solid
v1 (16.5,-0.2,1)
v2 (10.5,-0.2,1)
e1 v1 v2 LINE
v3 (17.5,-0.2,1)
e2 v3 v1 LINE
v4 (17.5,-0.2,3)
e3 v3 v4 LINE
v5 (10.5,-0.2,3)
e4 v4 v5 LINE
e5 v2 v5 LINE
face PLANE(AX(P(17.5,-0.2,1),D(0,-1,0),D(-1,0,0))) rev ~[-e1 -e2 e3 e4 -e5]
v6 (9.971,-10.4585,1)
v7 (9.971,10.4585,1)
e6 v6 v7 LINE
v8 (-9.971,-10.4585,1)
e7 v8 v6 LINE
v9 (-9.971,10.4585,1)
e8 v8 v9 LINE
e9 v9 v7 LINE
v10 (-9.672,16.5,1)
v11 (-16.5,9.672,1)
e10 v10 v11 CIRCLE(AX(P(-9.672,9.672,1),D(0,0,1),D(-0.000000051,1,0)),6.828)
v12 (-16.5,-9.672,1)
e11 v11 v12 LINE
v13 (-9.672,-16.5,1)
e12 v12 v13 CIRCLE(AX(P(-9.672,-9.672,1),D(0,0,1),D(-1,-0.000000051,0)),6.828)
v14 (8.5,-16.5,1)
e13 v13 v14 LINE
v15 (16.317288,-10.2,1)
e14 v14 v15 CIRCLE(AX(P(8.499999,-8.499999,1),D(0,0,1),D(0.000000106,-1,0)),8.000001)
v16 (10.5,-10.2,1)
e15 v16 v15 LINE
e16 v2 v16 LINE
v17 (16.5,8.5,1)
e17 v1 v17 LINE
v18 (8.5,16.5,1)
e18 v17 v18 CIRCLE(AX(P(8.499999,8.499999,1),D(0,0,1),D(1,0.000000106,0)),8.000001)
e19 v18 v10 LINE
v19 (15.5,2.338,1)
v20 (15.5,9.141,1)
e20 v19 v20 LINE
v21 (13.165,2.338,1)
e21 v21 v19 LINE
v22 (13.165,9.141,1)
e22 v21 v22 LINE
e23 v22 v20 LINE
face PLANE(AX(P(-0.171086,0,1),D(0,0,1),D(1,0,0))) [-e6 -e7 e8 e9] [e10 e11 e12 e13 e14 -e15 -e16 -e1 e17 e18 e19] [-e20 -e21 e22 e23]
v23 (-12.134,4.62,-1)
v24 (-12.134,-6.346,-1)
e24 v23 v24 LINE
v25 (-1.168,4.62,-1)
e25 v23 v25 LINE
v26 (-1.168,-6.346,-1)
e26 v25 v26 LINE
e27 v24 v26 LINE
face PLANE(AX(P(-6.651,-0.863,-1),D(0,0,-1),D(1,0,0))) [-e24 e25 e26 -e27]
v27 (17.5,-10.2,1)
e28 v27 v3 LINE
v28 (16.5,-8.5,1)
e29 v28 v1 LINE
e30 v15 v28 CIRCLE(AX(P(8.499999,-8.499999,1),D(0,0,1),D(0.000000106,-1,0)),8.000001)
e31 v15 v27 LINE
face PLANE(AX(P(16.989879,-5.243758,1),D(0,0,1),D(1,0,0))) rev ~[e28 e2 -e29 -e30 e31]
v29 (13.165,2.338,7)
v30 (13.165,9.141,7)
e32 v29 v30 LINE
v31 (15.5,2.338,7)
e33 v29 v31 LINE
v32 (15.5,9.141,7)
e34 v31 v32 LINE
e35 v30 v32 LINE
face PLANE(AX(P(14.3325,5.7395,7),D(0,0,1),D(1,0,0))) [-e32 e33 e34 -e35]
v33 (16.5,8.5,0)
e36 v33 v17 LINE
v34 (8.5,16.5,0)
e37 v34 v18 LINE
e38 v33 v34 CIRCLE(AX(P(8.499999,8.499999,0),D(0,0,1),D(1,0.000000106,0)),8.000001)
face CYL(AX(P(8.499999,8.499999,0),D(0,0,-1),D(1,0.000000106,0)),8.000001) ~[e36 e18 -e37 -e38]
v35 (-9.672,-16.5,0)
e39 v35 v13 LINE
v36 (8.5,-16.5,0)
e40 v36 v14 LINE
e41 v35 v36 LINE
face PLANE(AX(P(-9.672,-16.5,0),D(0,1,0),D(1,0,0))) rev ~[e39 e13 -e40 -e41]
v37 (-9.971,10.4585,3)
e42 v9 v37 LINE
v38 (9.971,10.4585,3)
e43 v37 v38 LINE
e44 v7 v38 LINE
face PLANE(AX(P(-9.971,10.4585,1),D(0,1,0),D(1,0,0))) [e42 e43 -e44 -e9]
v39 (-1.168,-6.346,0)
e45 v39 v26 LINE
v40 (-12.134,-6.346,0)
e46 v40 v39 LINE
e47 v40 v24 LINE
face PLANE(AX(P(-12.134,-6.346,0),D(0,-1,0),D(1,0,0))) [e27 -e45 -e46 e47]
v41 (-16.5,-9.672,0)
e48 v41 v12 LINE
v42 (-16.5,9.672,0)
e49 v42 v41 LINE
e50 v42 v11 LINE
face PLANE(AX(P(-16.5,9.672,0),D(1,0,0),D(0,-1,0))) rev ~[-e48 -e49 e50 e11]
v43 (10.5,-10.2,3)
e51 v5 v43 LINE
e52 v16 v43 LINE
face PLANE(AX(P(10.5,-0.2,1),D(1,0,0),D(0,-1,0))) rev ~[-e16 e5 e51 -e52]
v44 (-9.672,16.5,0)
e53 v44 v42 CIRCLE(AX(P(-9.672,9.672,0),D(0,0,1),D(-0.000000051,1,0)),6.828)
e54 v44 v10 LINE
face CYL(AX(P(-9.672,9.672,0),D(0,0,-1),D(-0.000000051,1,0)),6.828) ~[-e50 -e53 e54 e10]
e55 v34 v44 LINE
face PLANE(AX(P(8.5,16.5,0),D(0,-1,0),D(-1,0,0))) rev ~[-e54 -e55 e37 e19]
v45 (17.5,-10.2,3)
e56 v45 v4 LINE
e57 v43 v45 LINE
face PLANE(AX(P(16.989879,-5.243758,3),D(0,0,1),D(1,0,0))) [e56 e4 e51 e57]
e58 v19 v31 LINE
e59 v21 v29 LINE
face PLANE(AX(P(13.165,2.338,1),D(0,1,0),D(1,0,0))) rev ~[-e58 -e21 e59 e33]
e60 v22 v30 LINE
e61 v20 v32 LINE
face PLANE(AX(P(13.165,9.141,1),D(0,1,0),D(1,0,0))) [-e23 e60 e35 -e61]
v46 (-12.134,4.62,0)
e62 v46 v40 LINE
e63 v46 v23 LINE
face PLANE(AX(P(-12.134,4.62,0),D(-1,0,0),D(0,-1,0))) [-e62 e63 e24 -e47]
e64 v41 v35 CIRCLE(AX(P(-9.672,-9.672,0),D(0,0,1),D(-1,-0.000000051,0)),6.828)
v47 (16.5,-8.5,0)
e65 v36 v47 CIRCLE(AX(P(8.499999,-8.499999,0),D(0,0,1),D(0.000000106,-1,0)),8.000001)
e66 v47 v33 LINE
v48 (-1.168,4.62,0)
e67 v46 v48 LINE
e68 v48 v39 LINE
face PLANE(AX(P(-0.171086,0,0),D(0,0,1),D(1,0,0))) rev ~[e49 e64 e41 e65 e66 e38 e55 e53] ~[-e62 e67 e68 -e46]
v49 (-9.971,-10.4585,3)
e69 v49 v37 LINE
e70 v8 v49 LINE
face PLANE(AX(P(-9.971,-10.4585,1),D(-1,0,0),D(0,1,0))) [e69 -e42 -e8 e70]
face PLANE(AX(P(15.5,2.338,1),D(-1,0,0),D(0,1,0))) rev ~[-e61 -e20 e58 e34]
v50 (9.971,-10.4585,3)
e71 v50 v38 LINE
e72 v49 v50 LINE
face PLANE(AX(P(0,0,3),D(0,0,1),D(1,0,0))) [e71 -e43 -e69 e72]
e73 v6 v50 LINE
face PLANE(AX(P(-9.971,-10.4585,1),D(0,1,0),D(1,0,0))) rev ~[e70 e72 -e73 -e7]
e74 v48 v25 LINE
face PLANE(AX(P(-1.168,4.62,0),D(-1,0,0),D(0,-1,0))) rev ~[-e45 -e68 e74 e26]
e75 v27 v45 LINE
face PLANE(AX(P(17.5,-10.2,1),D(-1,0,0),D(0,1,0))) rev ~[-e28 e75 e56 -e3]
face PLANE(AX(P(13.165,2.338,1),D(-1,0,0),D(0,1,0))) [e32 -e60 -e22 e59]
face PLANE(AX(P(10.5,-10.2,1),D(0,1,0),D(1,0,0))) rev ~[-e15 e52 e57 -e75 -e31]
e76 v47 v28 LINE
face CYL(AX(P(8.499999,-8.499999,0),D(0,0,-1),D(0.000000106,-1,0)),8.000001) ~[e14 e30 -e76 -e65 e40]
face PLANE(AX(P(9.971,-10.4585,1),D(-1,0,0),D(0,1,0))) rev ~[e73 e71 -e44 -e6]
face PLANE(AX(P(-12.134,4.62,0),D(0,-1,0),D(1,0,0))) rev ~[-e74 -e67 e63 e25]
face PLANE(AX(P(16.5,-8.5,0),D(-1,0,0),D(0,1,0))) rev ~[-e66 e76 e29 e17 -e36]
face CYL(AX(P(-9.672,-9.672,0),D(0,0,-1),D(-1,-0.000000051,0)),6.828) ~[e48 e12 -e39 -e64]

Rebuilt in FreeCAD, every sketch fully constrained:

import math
import FreeCAD as App
import Part
import Sketcher
Q = App.Units.Quantity


def add_polygon(sketch, points):
    """Adds a closed chain of lines whose ends are joined by coincident constraints."""
    first, n = sketch.GeometryCount, len(points)
    for a, b in zip(points, points[1:] + points[:1]):
        sketch.addGeometry(Part.LineSegment(App.Vector(*a, 0), App.Vector(*b, 0)), False)
    for i in range(n):
        sketch.addConstraint(Sketcher.Constraint("Coincident", first + i, 2, first + (i + 1) % n, 1))

doc = App.newDocument("Part")
params = doc.addObject("Spreadsheet::Sheet", "Params")
for row, (alias, value) in enumerate([
    ("sketch1_radius", "8.000001 mm"),
    ("sketch1_height", "17 mm"),
    ("pad1_length", "1 mm"),
    ("sketch2_width", "7 mm"),
    ("sketch2_height", "10 mm"),
    ("pad2_length", "2 mm"),
    ("pad3_length", "2 mm"),
    ("pad4_length", "6 mm"),
    ("pad5_length", "1 mm"),
], start=1):
    params.set(f"A{row}", alias)
    params.set(f"B{row}", "=" + value)
    params.setAlias(f"B{row}", alias)

body = doc.addObject("PartDesign::Body", "Body")

sketch1 = body.newObject("Sketcher::SketchObject", "Sketch")
sketch1.AttachmentSupport = (doc.getObject("XY_Plane"), [""])
sketch1.MapMode = "FlatFace"
sketch1.addGeometry([
    Part.LineSegment(App.Vector(-10, -16, 0), App.Vector(8, -16, 0)),
    Part.ArcOfCircle(Part.Circle(App.Vector(8, -8, 0), App.Vector(0, 0, 1), 8), math.radians(-90), math.radians(0)),
    Part.LineSegment(App.Vector(16, -8, 0), App.Vector(16, 8, 0)),
    Part.ArcOfCircle(Part.Circle(App.Vector(8, 8, 0), App.Vector(0, 0, 1), 8), math.radians(0), math.radians(90)),
    Part.LineSegment(App.Vector(8, 16, 0), App.Vector(-10, 16, 0)),
    Part.ArcOfCircle(Part.Circle(App.Vector(-10, 10, 0), App.Vector(0, 0, 1), 7), math.radians(90), math.radians(180)),
    Part.LineSegment(App.Vector(-16, 10, 0), App.Vector(-16, -10, 0)),
    Part.ArcOfCircle(Part.Circle(App.Vector(-10, -10, 0), App.Vector(0, 0, 1), 7), math.radians(-180), math.radians(-90)),
], False)
sketch1.addConstraint([
    Sketcher.Constraint("Tangent", 0, 2, 1, 1),
    Sketcher.Constraint("Tangent", 1, 2, 2, 1),
    Sketcher.Constraint("Tangent", 2, 2, 3, 1),
    Sketcher.Constraint("Tangent", 3, 2, 4, 1),
    Sketcher.Constraint("Tangent", 4, 2, 5, 1),
    Sketcher.Constraint("Tangent", 5, 2, 6, 1),
    Sketcher.Constraint("Tangent", 6, 2, 7, 1),
    Sketcher.Constraint("Tangent", 7, 2, 0, 1),
    Sketcher.Constraint("Horizontal", 0),
    Sketcher.Constraint("Vertical", 2),
    Sketcher.Constraint("Horizontal", 4),
    Sketcher.Constraint("Vertical", 6),
    Sketcher.Constraint("Equal", 1, 3),
    Sketcher.Constraint("Equal", 5, 7),
    Sketcher.Constraint("Radius", 1, Q("8.000001 mm")),
    Sketcher.Constraint("DistanceY", 2, 1, 2, 2, Q("17 mm")),
    Sketcher.Constraint("Radius", 5, Q("6.828 mm")),
    Sketcher.Constraint("DistanceX", 5, 2, 3, 3, Q("24.999999 mm")),
    Sketcher.Constraint("DistanceX", -1, 1, 1, 3, Q("8.499999 mm")),
    Sketcher.Constraint("DistanceY", 1, 3, -1, 1, Q("8.499999 mm")),
])
sketch1.setExpression("Constraints[14]", "Params.sketch1_radius")
sketch1.setExpression("Constraints[15]", "Params.sketch1_height")
pad1 = body.newObject("PartDesign::Pad", "Pad")
pad1.Profile = sketch1
pad1.setExpression("Length", "Params.pad1_length")

sketch2 = body.newObject("Sketcher::SketchObject", "Sketch001")
sketch2.AttachmentSupport = (doc.getObject("XY_Plane"), [""])
sketch2.MapMode = "FlatFace"
sketch2.AttachmentOffset = App.Placement(App.Vector(0, 0, 1), App.Rotation())
add_polygon(sketch2, [(18, -10), (18, 0), (10, 0), (10, -10)])
sketch2.addConstraint([
    Sketcher.Constraint("Vertical", 0),
    Sketcher.Constraint("Horizontal", 1),
    Sketcher.Constraint("Vertical", 2),
    Sketcher.Constraint("Horizontal", 3),
    Sketcher.Constraint("DistanceX", 1, 2, 1, 1, Q("7 mm")),
    Sketcher.Constraint("DistanceY", 0, 1, 0, 2, Q("10 mm")),
    Sketcher.Constraint("DistanceX", -1, 1, 0, 2, Q("17.5 mm")),
    Sketcher.Constraint("DistanceY", 0, 2, -1, 1, Q("0.2 mm")),
])
sketch2.setExpression("Constraints[8]", "Params.sketch2_width")
sketch2.setExpression("Constraints[9]", "Params.sketch2_height")
pad2 = body.newObject("PartDesign::Pad", "Pad001")
pad2.Profile = sketch2
pad2.setExpression("Length", "Params.pad2_length")

sketch3 = body.newObject("Sketcher::SketchObject", "Sketch002")
sketch3.AttachmentSupport = (doc.getObject("XY_Plane"), [""])
sketch3.MapMode = "FlatFace"
sketch3.AttachmentOffset = App.Placement(App.Vector(0, 0, 1), App.Rotation())
add_polygon(sketch3, [(-10, 10), (-10, -10), (10, -10), (10, 10)])
sketch3.addConstraint([
    Sketcher.Constraint("Vertical", 0),
    Sketcher.Constraint("Horizontal", 1),
    Sketcher.Constraint("Vertical", 2),
    Sketcher.Constraint("Horizontal", 3),
    Sketcher.Constraint("Symmetric", 0, 2, 2, 2, -1, 1),
    Sketcher.Constraint("DistanceX", 1, 1, 1, 2, Q("19.942 mm")),
    Sketcher.Constraint("DistanceY", 0, 2, 0, 1, Q("20.917 mm")),
])
pad3 = body.newObject("PartDesign::Pad", "Pad002")
pad3.Profile = sketch3
pad3.setExpression("Length", "Params.pad3_length")

sketch4 = body.newObject("Sketcher::SketchObject", "Sketch003")
sketch4.AttachmentSupport = (doc.getObject("XY_Plane"), [""])
sketch4.MapMode = "FlatFace"
sketch4.AttachmentOffset = App.Placement(App.Vector(0, 0, 1), App.Rotation())
add_polygon(sketch4, [(13.2, 9.1), (13.2, 2.3), (15.5, 2.3), (15.5, 9.1)])
sketch4.addConstraint([
    Sketcher.Constraint("Vertical", 0),
    Sketcher.Constraint("Horizontal", 1),
    Sketcher.Constraint("Vertical", 2),
    Sketcher.Constraint("Horizontal", 3),
    Sketcher.Constraint("DistanceX", -1, 1, 1, 2, Q("15.5 mm")),
    Sketcher.Constraint("DistanceX", 1, 1, 1, 2, Q("2.335 mm")),
    Sketcher.Constraint("DistanceY", 0, 2, 0, 1, Q("6.803 mm")),
    Sketcher.Constraint("DistanceY", -1, 1, 0, 2, Q("2.338 mm")),
])
pad4 = body.newObject("PartDesign::Pad", "Pad003")
pad4.Profile = sketch4
pad4.setExpression("Length", "Params.pad4_length")

sketch5 = body.newObject("Sketcher::SketchObject", "Sketch004")
sketch5.AttachmentSupport = (doc.getObject("XY_Plane"), [""])
sketch5.MapMode = "FlatFace"
add_polygon(sketch5, [(-12, -6), (-12, 5), (-1, 5), (-1, -6)])
sketch5.addConstraint([
    Sketcher.Constraint("Vertical", 0),
    Sketcher.Constraint("Horizontal", 1),
    Sketcher.Constraint("Vertical", 2),
    Sketcher.Constraint("Horizontal", 3),
    Sketcher.Constraint("Equal", 3, 0),
    Sketcher.Constraint("DistanceX", 1, 1, 1, 2, Q("10.966 mm")),
    Sketcher.Constraint("DistanceY", -1, 1, 0, 2, Q("4.62 mm")),
    Sketcher.Constraint("DistanceX", 0, 2, -1, 1, Q("12.134 mm")),
])
pad5 = body.newObject("PartDesign::Pad", "Pad004")
pad5.Profile = sketch5
pad5.setExpression("Length", "Params.pad5_length")
pad5.Reversed = True

doc.recompute()
